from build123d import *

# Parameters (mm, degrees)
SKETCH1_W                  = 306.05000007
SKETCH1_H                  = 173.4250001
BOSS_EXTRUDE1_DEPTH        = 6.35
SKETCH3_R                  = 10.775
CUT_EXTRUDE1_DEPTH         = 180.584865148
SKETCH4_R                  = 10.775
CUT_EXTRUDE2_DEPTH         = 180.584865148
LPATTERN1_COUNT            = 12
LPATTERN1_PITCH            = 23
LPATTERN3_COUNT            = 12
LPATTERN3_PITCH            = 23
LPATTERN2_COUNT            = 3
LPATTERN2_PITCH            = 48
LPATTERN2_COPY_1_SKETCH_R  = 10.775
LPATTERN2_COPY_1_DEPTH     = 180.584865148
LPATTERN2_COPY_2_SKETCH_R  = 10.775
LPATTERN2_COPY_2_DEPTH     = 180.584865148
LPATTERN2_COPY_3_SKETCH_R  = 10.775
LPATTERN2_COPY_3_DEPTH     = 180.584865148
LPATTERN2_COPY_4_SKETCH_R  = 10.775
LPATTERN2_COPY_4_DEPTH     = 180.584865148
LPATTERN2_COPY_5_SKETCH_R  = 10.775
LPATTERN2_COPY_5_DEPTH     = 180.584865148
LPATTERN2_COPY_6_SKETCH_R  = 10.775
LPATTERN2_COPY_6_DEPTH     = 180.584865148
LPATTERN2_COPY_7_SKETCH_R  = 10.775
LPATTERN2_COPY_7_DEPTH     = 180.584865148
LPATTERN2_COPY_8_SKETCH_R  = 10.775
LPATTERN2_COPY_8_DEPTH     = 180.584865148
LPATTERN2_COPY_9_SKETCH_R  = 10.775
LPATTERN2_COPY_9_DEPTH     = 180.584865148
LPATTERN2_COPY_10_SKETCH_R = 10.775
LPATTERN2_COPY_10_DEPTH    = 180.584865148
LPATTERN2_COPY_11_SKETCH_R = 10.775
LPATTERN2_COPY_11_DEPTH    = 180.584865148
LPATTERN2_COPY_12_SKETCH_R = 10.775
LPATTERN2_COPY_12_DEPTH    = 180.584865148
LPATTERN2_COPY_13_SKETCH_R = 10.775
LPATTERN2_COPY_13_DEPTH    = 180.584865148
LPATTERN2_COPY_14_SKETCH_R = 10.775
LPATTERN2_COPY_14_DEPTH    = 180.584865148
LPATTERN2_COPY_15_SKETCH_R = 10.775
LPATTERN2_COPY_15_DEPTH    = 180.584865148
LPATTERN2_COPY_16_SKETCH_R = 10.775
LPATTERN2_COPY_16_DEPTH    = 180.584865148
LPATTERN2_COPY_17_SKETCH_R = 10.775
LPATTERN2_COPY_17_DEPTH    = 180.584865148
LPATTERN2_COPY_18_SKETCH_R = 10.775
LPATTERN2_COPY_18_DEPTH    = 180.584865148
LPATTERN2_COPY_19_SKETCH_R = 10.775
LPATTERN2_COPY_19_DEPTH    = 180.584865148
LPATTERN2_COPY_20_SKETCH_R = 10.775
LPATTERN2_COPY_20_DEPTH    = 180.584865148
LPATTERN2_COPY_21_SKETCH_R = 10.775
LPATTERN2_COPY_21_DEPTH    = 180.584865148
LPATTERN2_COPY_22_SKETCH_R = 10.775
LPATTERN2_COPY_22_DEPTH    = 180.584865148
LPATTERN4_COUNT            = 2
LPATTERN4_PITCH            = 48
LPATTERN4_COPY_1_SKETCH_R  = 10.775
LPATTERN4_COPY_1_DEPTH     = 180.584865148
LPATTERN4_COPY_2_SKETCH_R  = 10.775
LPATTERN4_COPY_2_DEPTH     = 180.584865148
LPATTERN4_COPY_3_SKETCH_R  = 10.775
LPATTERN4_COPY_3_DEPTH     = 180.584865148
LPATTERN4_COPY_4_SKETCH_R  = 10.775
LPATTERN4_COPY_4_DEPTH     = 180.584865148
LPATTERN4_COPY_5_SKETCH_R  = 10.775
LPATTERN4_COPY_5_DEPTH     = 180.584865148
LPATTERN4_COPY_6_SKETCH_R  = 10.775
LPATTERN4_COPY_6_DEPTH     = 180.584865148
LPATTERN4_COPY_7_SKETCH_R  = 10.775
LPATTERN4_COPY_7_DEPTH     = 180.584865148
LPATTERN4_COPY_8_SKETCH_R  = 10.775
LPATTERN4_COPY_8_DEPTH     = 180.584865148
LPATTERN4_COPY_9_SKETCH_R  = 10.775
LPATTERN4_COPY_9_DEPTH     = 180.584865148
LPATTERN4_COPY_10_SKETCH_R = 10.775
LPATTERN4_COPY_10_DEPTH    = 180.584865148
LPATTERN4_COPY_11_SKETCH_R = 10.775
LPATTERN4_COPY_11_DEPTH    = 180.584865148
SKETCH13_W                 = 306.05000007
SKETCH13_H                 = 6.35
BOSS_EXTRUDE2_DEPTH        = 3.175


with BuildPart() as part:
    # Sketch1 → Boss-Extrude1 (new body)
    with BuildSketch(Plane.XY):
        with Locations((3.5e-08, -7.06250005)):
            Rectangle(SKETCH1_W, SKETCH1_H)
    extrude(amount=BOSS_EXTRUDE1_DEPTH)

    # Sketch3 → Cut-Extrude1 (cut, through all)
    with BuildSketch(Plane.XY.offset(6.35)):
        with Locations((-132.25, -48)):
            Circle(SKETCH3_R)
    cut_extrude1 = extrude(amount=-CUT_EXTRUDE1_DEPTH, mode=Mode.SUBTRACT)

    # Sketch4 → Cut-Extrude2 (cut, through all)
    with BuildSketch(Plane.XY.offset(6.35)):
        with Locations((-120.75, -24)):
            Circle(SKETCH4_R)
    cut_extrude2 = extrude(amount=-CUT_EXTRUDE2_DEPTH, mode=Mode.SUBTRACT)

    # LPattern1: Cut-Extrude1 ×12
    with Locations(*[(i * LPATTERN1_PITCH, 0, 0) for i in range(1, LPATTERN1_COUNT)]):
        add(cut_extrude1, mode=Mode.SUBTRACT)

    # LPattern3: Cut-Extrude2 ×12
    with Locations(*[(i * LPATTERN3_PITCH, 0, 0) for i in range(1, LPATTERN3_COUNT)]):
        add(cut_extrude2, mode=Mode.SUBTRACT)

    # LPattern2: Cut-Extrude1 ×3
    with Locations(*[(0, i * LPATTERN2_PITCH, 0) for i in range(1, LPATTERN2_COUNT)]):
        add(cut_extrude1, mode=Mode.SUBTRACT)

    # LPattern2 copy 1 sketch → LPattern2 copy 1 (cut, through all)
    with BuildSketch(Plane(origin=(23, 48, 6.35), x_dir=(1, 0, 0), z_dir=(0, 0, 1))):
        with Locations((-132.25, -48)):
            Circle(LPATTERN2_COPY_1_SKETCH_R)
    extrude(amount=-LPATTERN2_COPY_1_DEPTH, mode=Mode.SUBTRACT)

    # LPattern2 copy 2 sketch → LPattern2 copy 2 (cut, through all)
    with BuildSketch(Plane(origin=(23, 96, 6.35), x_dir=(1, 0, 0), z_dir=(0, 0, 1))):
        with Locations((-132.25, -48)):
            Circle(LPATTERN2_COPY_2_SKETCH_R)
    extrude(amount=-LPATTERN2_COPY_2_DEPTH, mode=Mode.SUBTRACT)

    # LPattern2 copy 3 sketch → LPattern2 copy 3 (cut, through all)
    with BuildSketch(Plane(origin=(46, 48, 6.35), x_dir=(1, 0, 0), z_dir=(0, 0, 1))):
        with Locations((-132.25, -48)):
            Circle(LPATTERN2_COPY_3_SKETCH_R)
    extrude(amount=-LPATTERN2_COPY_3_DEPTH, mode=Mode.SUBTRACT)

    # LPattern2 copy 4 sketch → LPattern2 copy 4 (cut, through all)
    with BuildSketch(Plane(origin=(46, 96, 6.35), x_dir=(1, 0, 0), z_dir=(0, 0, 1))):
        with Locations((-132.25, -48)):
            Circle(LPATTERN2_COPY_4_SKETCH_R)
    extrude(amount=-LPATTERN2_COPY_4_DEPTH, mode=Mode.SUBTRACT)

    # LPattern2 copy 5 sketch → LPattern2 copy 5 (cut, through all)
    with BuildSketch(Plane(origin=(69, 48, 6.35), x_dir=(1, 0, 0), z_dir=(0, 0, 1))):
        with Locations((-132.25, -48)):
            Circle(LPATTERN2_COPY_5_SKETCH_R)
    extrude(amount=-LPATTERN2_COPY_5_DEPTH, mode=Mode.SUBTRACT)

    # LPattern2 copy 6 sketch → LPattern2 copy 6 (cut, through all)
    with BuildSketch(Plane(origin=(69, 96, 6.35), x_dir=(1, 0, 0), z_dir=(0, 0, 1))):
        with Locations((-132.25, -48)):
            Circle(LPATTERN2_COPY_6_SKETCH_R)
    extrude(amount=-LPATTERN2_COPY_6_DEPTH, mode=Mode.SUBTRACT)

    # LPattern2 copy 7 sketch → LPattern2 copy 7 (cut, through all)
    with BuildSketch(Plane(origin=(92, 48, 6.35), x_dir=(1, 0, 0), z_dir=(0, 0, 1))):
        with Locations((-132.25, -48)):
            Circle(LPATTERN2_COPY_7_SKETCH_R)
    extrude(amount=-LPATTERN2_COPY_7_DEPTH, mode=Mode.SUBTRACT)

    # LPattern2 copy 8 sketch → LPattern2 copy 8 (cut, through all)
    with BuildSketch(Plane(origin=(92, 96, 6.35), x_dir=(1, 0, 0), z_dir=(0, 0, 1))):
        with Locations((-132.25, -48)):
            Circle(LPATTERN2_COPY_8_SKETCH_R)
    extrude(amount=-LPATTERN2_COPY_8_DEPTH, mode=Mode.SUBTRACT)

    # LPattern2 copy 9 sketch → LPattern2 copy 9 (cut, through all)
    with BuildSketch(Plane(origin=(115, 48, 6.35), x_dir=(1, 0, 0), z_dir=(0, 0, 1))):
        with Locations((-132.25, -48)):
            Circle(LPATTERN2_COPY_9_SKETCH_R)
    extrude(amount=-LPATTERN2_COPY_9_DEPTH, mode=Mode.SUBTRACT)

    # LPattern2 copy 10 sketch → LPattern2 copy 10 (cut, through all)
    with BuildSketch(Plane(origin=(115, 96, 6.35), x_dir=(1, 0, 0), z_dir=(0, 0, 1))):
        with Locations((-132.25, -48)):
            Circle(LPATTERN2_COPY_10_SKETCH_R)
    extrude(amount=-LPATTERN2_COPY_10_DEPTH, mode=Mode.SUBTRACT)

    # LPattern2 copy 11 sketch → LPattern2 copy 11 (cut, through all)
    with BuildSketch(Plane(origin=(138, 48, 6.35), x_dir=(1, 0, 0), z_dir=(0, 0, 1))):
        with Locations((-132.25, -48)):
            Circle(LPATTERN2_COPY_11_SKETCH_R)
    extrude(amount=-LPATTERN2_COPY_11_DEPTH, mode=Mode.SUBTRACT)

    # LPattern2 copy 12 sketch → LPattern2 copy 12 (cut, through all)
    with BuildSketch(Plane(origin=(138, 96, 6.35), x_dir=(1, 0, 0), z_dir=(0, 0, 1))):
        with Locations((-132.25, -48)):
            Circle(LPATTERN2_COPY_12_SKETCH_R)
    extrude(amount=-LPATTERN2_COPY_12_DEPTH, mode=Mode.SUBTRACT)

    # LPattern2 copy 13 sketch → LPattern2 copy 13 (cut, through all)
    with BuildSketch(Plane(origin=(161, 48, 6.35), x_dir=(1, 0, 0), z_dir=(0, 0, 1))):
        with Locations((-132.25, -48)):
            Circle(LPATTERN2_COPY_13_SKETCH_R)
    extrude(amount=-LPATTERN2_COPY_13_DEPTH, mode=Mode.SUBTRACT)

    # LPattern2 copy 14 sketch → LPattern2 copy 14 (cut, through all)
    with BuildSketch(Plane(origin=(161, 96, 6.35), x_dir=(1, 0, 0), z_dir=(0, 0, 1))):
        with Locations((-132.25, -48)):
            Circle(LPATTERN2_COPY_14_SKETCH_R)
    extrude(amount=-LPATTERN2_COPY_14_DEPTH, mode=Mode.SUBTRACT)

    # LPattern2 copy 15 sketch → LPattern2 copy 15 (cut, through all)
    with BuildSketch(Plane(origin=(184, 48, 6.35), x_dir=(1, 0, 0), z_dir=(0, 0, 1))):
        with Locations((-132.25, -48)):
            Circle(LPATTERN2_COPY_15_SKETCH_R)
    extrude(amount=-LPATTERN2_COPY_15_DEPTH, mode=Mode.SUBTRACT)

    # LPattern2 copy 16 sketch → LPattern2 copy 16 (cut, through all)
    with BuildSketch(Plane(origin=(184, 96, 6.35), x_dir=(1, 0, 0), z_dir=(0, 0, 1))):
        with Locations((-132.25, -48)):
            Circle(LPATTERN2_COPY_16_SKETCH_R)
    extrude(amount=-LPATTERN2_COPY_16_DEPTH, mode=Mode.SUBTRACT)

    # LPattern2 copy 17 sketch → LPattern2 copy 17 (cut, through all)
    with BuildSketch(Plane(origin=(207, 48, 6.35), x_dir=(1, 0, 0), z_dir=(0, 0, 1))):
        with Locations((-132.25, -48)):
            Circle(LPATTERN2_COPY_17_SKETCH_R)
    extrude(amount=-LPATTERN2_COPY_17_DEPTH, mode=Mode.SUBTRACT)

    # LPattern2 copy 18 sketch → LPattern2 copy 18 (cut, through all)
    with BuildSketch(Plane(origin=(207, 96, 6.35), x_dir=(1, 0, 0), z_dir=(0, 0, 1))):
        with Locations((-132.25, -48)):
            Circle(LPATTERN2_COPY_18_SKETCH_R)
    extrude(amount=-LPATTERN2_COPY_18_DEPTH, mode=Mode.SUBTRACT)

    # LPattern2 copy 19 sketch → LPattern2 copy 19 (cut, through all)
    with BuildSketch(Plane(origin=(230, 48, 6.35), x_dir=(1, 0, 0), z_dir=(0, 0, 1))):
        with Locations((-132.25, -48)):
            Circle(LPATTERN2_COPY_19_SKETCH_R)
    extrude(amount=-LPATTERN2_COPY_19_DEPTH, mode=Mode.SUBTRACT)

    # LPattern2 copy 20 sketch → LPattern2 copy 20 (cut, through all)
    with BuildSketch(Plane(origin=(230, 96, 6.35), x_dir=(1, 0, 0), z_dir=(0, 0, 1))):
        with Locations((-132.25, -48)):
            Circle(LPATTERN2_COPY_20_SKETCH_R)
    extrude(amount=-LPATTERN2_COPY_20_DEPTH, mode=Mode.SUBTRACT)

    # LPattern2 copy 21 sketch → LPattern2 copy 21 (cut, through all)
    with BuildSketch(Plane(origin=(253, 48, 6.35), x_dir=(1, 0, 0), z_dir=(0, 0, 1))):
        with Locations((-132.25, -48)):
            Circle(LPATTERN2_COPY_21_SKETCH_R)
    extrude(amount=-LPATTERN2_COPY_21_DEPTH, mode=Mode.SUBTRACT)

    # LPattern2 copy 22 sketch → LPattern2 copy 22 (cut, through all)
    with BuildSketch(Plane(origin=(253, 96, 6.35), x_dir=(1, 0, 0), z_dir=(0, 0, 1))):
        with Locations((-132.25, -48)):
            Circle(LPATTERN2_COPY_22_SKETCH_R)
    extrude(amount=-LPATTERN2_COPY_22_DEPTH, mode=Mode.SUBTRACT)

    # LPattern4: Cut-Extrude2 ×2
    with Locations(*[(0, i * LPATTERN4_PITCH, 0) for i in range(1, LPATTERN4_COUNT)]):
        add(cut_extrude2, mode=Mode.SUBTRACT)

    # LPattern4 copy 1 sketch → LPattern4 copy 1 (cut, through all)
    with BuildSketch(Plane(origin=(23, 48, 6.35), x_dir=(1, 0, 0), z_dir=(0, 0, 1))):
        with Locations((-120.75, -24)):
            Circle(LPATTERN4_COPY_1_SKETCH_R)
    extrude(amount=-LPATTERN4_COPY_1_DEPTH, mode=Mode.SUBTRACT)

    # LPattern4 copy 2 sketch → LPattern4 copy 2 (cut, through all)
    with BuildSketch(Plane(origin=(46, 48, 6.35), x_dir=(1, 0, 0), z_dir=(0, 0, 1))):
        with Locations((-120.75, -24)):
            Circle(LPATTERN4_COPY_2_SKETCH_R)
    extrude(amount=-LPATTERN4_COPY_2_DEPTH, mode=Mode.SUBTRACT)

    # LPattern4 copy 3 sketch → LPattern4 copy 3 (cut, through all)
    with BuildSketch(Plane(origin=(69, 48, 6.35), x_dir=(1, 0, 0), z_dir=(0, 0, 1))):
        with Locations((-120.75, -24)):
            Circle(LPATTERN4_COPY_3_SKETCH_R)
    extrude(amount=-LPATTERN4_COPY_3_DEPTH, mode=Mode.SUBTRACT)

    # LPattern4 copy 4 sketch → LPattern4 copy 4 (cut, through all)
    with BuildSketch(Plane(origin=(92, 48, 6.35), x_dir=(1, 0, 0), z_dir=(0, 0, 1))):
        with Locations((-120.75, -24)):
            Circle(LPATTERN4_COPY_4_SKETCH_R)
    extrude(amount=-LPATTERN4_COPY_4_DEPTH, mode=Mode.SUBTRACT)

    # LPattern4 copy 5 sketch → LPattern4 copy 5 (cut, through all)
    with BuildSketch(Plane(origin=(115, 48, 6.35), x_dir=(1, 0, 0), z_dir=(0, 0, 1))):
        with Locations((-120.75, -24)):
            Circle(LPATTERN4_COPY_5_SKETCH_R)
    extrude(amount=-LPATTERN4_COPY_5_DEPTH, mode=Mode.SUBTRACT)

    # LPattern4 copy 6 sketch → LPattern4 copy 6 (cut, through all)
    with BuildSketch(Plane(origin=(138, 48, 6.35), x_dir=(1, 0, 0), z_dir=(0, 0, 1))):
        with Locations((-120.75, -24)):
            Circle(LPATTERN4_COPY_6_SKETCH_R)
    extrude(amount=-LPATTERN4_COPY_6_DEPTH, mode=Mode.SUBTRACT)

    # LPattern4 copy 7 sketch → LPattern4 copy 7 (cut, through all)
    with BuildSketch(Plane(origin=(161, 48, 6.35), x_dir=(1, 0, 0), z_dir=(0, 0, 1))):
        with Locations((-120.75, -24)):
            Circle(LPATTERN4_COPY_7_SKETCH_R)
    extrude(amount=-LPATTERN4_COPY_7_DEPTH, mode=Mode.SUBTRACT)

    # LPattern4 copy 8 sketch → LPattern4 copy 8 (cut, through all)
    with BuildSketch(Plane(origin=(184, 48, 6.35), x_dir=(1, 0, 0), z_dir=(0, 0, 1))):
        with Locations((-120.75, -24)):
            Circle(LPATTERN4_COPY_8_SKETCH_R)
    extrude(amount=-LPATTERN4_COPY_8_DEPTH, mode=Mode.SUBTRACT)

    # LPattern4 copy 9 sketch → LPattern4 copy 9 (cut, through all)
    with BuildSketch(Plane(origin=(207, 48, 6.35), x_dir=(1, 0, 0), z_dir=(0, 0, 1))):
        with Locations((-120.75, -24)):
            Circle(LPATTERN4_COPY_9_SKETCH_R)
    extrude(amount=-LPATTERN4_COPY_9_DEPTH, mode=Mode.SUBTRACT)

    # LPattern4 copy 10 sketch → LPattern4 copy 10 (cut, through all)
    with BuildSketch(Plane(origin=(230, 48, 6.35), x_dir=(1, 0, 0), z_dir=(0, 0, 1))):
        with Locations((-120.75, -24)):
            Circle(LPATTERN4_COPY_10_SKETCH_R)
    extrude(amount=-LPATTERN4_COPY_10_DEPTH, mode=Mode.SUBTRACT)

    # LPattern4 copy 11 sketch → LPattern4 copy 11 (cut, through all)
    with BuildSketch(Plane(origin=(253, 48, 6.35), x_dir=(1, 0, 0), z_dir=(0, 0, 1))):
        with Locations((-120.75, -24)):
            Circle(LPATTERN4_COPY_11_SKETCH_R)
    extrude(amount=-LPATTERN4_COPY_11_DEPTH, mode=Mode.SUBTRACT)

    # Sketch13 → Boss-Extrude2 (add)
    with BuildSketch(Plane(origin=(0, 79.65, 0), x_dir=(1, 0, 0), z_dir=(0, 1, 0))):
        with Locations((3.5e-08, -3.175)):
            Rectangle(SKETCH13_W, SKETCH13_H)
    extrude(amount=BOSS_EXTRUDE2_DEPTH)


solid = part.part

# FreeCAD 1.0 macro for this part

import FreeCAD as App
import Part
import Sketcher
from FreeCAD import Vector
Q = App.Units.Quantity

doc = App.newDocument("Part")
params = doc.addObject("Spreadsheet::Sheet", "Params")
for row, (alias, value) in enumerate([
    ("pad1_length", "0.25 in"),
    ("linearpattern_pitch", "23 mm"),
    ("linearpattern2_pitch", "23 mm"),
    ("linearpattern3_pitch", "48 mm"),
    ("linearpattern4_pitch", "48 mm"),
    ("sketch37_height", "0.25 in"),
    ("pad2_length", "0.125 in"),
], start=1):
    params.set(f"A{row}", alias)
    params.set(f"B{row}", "=" + value)
    params.setAlias(f"B{row}", alias)

body = doc.addObject("PartDesign::Body", "Body")

# Sketch on XY plane
sketch1 = body.newObject("Sketcher::SketchObject", "Sketch")
sketch1.AttachmentSupport = (doc.getObject("XY_Plane"), [""])
sketch1.MapMode = "FlatFace"
sketch1.addGeometry(Part.LineSegment(Vector(-153.025, 79.65, 0), Vector(-153.025, -93.775, 0)), False)
sketch1.addGeometry(Part.LineSegment(Vector(-153.025, -93.775, 0), Vector(153.025, -93.775, 0)), False)
sketch1.addGeometry(Part.LineSegment(Vector(153.025, -93.775, 0), Vector(153.025, 79.65, 0)), False)
sketch1.addGeometry(Part.LineSegment(Vector(153.025, 79.65, 0), Vector(-153.025, 79.65, 0)), False)
sketch1.addConstraint(Sketcher.Constraint("Coincident", 0, 2, 1, 1))
sketch1.addConstraint(Sketcher.Constraint("Coincident", 1, 2, 2, 1))
sketch1.addConstraint(Sketcher.Constraint("Coincident", 2, 2, 3, 1))
sketch1.addConstraint(Sketcher.Constraint("Coincident", 3, 2, 0, 1))
sketch1.addConstraint(Sketcher.Constraint("Vertical", 0))
sketch1.addConstraint(Sketcher.Constraint("Horizontal", 1))
sketch1.addConstraint(Sketcher.Constraint("Vertical", 2))
sketch1.addConstraint(Sketcher.Constraint("Horizontal", 3))
sketch1.addConstraint(Sketcher.Constraint("DistanceX", 1, 1, 1, 2, Q("306.05 mm")))
sketch1.addConstraint(Sketcher.Constraint("DistanceY", 0, 2, 0, 1, Q("173.425 mm")))
sketch1.addConstraint(Sketcher.Constraint("DistanceX", 0, 2, -1, 1, Q("153.025 mm")))
sketch1.addConstraint(Sketcher.Constraint("DistanceY", 0, 2, -1, 1, Q("93.775 mm")))
pad1 = body.newObject("PartDesign::Pad", "Pad")
pad1.Profile = sketch1
pad1.setExpression("Length", "Params.pad1_length")

# Sketch on XY plane
sketch2 = body.newObject("Sketcher::SketchObject", "Sketch001")
sketch2.AttachmentSupport = (doc.getObject("XY_Plane"), [""])
sketch2.MapMode = "FlatFace"
sketch2.AttachmentOffset = App.Placement(Vector(0, 0, 0.25 * 25.4), App.Rotation())
sketch2.addGeometry(Part.Circle(Vector(-132.25, -48, 0), Vector(0, 0, 1), 10.775), False)
sketch2.addConstraint(Sketcher.Constraint("Diameter", 0, Q("21.55 mm")))
sketch2.addConstraint(Sketcher.Constraint("DistanceX", 0, 3, -1, 1, Q("132.25 mm")))
sketch2.addConstraint(Sketcher.Constraint("DistanceY", 0, 3, -1, 1, Q("48 mm")))
pocket1 = body.newObject("PartDesign::Pocket", "Pocket")
pocket1.Profile = sketch2
pocket1.Type = "ThroughAll"

# Sketch on XY plane
sketch3 = body.newObject("Sketcher::SketchObject", "Sketch002")
sketch3.AttachmentSupport = (doc.getObject("XY_Plane"), [""])
sketch3.MapMode = "FlatFace"
sketch3.AttachmentOffset = App.Placement(Vector(0, 0, 0.25 * 25.4), App.Rotation())
sketch3.addGeometry(Part.Circle(Vector(-120.75, -24, 0), Vector(0, 0, 1), 10.775), False)
sketch3.addConstraint(Sketcher.Constraint("Diameter", 0, Q("21.55 mm")))
sketch3.addConstraint(Sketcher.Constraint("DistanceX", 0, 3, -1, 1, Q("120.75 mm")))
sketch3.addConstraint(Sketcher.Constraint("DistanceY", 0, 3, -1, 1, Q("24 mm")))
pocket2 = body.newObject("PartDesign::Pocket", "Pocket001")
pocket2.Profile = sketch3
pocket2.Type = "ThroughAll"
doc.recompute()

linearpattern = body.newObject("PartDesign::LinearPattern", "LinearPattern")
linearpattern.Originals = [pocket1]
linearpattern.Direction = (doc.getObject("X_Axis"), [""])
linearpattern.Mode = "offset"
linearpattern.setExpression("Offset", "Params.linearpattern_pitch")
linearpattern.Occurrences = 12
body.Tip = linearpattern
doc.recompute()

linearpattern2 = body.newObject("PartDesign::LinearPattern", "LinearPattern001")
linearpattern2.Originals = [pocket2]
linearpattern2.Direction = (doc.getObject("X_Axis"), [""])
linearpattern2.Mode = "offset"
linearpattern2.setExpression("Offset", "Params.linearpattern2_pitch")
linearpattern2.Occurrences = 12
body.Tip = linearpattern2
doc.recompute()

linearpattern3 = body.newObject("PartDesign::LinearPattern", "LinearPattern002")
linearpattern3.Originals = [pocket1]
linearpattern3.Direction = (doc.getObject("Y_Axis"), [""])
linearpattern3.Mode = "offset"
linearpattern3.setExpression("Offset", "Params.linearpattern3_pitch")
linearpattern3.Occurrences = 3
body.Tip = linearpattern3

# Sketch on XY plane
sketch4 = body.newObject("Sketcher::SketchObject", "Sketch003")
sketch4.AttachmentSupport = (doc.getObject("XY_Plane"), [""])
sketch4.MapMode = "FlatFace"
sketch4.AttachmentOffset = App.Placement(Vector(0, 0, 0.25 * 25.4), App.Rotation())
sketch4.addGeometry(Part.Circle(Vector(-109.25, 0, 0), Vector(0, 0, 1), 10.775), False)
sketch4.addConstraint(Sketcher.Constraint("PointOnObject", 0, 3, -1))
sketch4.addConstraint(Sketcher.Constraint("Diameter", 0, Q("21.55 mm")))
sketch4.addConstraint(Sketcher.Constraint("DistanceX", 0, 3, -1, 1, Q("109.25 mm")))
pocket3 = body.newObject("PartDesign::Pocket", "Pocket002")
pocket3.Profile = sketch4
pocket3.Type = "ThroughAll"

# Sketch on XY plane
sketch5 = body.newObject("Sketcher::SketchObject", "Sketch004")
sketch5.AttachmentSupport = (doc.getObject("XY_Plane"), [""])
sketch5.MapMode = "FlatFace"
sketch5.AttachmentOffset = App.Placement(Vector(0, 0, 0.25 * 25.4), App.Rotation())
sketch5.addGeometry(Part.Circle(Vector(-109.25, 48, 0), Vector(0, 0, 1), 10.775), False)
sketch5.addConstraint(Sketcher.Constraint("Diameter", 0, Q("21.55 mm")))
sketch5.addConstraint(Sketcher.Constraint("DistanceX", 0, 3, -1, 1, Q("109.25 mm")))
sketch5.addConstraint(Sketcher.Constraint("DistanceY", -1, 1, 0, 3, Q("48 mm")))
pocket4 = body.newObject("PartDesign::Pocket", "Pocket003")
pocket4.Profile = sketch5
pocket4.Type = "ThroughAll"

# Sketch on XY plane
sketch6 = body.newObject("Sketcher::SketchObject", "Sketch005")
sketch6.AttachmentSupport = (doc.getObject("XY_Plane"), [""])
sketch6.MapMode = "FlatFace"
sketch6.AttachmentOffset = App.Placement(Vector(0, 0, 0.25 * 25.4), App.Rotation())
sketch6.addGeometry(Part.Circle(Vector(-86.25, 0, 0), Vector(0, 0, 1), 10.775), False)
sketch6.addConstraint(Sketcher.Constraint("PointOnObject", 0, 3, -1))
sketch6.addConstraint(Sketcher.Constraint("Diameter", 0, Q("21.55 mm")))
sketch6.addConstraint(Sketcher.Constraint("DistanceX", 0, 3, -1, 1, Q("86.25 mm")))
pocket5 = body.newObject("PartDesign::Pocket", "Pocket004")
pocket5.Profile = sketch6
pocket5.Type = "ThroughAll"

# Sketch on XY plane
sketch7 = body.newObject("Sketcher::SketchObject", "Sketch006")
sketch7.AttachmentSupport = (doc.getObject("XY_Plane"), [""])
sketch7.MapMode = "FlatFace"
sketch7.AttachmentOffset = App.Placement(Vector(0, 0, 0.25 * 25.4), App.Rotation())
sketch7.addGeometry(Part.Circle(Vector(-86.25, 48, 0), Vector(0, 0, 1), 10.775), False)
sketch7.addConstraint(Sketcher.Constraint("Diameter", 0, Q("21.55 mm")))
sketch7.addConstraint(Sketcher.Constraint("DistanceX", 0, 3, -1, 1, Q("86.25 mm")))
sketch7.addConstraint(Sketcher.Constraint("DistanceY", -1, 1, 0, 3, Q("48 mm")))
pocket6 = body.newObject("PartDesign::Pocket", "Pocket005")
pocket6.Profile = sketch7
pocket6.Type = "ThroughAll"

# Sketch on XY plane
sketch8 = body.newObject("Sketcher::SketchObject", "Sketch007")
sketch8.AttachmentSupport = (doc.getObject("XY_Plane"), [""])
sketch8.MapMode = "FlatFace"
sketch8.AttachmentOffset = App.Placement(Vector(0, 0, 0.25 * 25.4), App.Rotation())
sketch8.addGeometry(Part.Circle(Vector(-63.25, 0, 0), Vector(0, 0, 1), 10.775), False)
sketch8.addConstraint(Sketcher.Constraint("PointOnObject", 0, 3, -1))
sketch8.addConstraint(Sketcher.Constraint("Diameter", 0, Q("21.55 mm")))
sketch8.addConstraint(Sketcher.Constraint("DistanceX", 0, 3, -1, 1, Q("63.25 mm")))
pocket7 = body.newObject("PartDesign::Pocket", "Pocket006")
pocket7.Profile = sketch8
pocket7.Type = "ThroughAll"

# Sketch on XY plane
sketch9 = body.newObject("Sketcher::SketchObject", "Sketch008")
sketch9.AttachmentSupport = (doc.getObject("XY_Plane"), [""])
sketch9.MapMode = "FlatFace"
sketch9.AttachmentOffset = App.Placement(Vector(0, 0, 0.25 * 25.4), App.Rotation())
sketch9.addGeometry(Part.Circle(Vector(-63.25, 48, 0), Vector(0, 0, 1), 10.775), False)
sketch9.addConstraint(Sketcher.Constraint("Diameter", 0, Q("21.55 mm")))
sketch9.addConstraint(Sketcher.Constraint("DistanceX", 0, 3, -1, 1, Q("63.25 mm")))
sketch9.addConstraint(Sketcher.Constraint("DistanceY", -1, 1, 0, 3, Q("48 mm")))
pocket8 = body.newObject("PartDesign::Pocket", "Pocket007")
pocket8.Profile = sketch9
pocket8.Type = "ThroughAll"

# Sketch on XY plane
sketch10 = body.newObject("Sketcher::SketchObject", "Sketch009")
sketch10.AttachmentSupport = (doc.getObject("XY_Plane"), [""])
sketch10.MapMode = "FlatFace"
sketch10.AttachmentOffset = App.Placement(Vector(0, 0, 0.25 * 25.4), App.Rotation())
sketch10.addGeometry(Part.Circle(Vector(-40.25, 0, 0), Vector(0, 0, 1), 10.775), False)
sketch10.addConstraint(Sketcher.Constraint("PointOnObject", 0, 3, -1))
sketch10.addConstraint(Sketcher.Constraint("Diameter", 0, Q("21.55 mm")))
sketch10.addConstraint(Sketcher.Constraint("DistanceX", 0, 3, -1, 1, Q("40.25 mm")))
pocket9 = body.newObject("PartDesign::Pocket", "Pocket008")
pocket9.Profile = sketch10
pocket9.Type = "ThroughAll"

# Sketch on XY plane
sketch11 = body.newObject("Sketcher::SketchObject", "Sketch010")
sketch11.AttachmentSupport = (doc.getObject("XY_Plane"), [""])
sketch11.MapMode = "FlatFace"
sketch11.AttachmentOffset = App.Placement(Vector(0, 0, 0.25 * 25.4), App.Rotation())
sketch11.addGeometry(Part.Circle(Vector(-40.25, 48, 0), Vector(0, 0, 1), 10.775), False)
sketch11.addConstraint(Sketcher.Constraint("Diameter", 0, Q("21.55 mm")))
sketch11.addConstraint(Sketcher.Constraint("DistanceX", 0, 3, -1, 1, Q("40.25 mm")))
sketch11.addConstraint(Sketcher.Constraint("DistanceY", -1, 1, 0, 3, Q("48 mm")))
pocket10 = body.newObject("PartDesign::Pocket", "Pocket009")
pocket10.Profile = sketch11
pocket10.Type = "ThroughAll"

# Sketch on XY plane
sketch12 = body.newObject("Sketcher::SketchObject", "Sketch011")
sketch12.AttachmentSupport = (doc.getObject("XY_Plane"), [""])
sketch12.MapMode = "FlatFace"
sketch12.AttachmentOffset = App.Placement(Vector(0, 0, 0.25 * 25.4), App.Rotation())
sketch12.addGeometry(Part.Circle(Vector(-17.25, 0, 0), Vector(0, 0, 1), 10.775), False)
sketch12.addConstraint(Sketcher.Constraint("PointOnObject", 0, 3, -1))
sketch12.addConstraint(Sketcher.Constraint("Diameter", 0, Q("21.55 mm")))
sketch12.addConstraint(Sketcher.Constraint("DistanceX", 0, 3, -1, 1, Q("17.25 mm")))
pocket11 = body.newObject("PartDesign::Pocket", "Pocket010")
pocket11.Profile = sketch12
pocket11.Type = "ThroughAll"

# Sketch on XY plane
sketch13 = body.newObject("Sketcher::SketchObject", "Sketch012")
sketch13.AttachmentSupport = (doc.getObject("XY_Plane"), [""])
sketch13.MapMode = "FlatFace"
sketch13.AttachmentOffset = App.Placement(Vector(0, 0, 0.25 * 25.4), App.Rotation())
sketch13.addGeometry(Part.Circle(Vector(-17.25, 48, 0), Vector(0, 0, 1), 10.775), False)
sketch13.addConstraint(Sketcher.Constraint("Diameter", 0, Q("21.55 mm")))
sketch13.addConstraint(Sketcher.Constraint("DistanceX", 0, 3, -1, 1, Q("17.25 mm")))
sketch13.addConstraint(Sketcher.Constraint("DistanceY", -1, 1, 0, 3, Q("48 mm")))
pocket12 = body.newObject("PartDesign::Pocket", "Pocket011")
pocket12.Profile = sketch13
pocket12.Type = "ThroughAll"

# Sketch on XY plane
sketch14 = body.newObject("Sketcher::SketchObject", "Sketch013")
sketch14.AttachmentSupport = (doc.getObject("XY_Plane"), [""])
sketch14.MapMode = "FlatFace"
sketch14.AttachmentOffset = App.Placement(Vector(0, 0, 0.25 * 25.4), App.Rotation())
sketch14.addGeometry(Part.Circle(Vector(5.75, 0, 0), Vector(0, 0, 1), 10.775), False)
sketch14.addConstraint(Sketcher.Constraint("PointOnObject", 0, 3, -1))
sketch14.addConstraint(Sketcher.Constraint("Diameter", 0, Q("21.55 mm")))
sketch14.addConstraint(Sketcher.Constraint("DistanceX", -1, 1, 0, 3, Q("5.75 mm")))
pocket13 = body.newObject("PartDesign::Pocket", "Pocket012")
pocket13.Profile = sketch14
pocket13.Type = "ThroughAll"

# Sketch on XY plane
sketch15 = body.newObject("Sketcher::SketchObject", "Sketch014")
sketch15.AttachmentSupport = (doc.getObject("XY_Plane"), [""])
sketch15.MapMode = "FlatFace"
sketch15.AttachmentOffset = App.Placement(Vector(0, 0, 0.25 * 25.4), App.Rotation())
sketch15.addGeometry(Part.Circle(Vector(5.75, 48, 0), Vector(0, 0, 1), 10.775), False)
sketch15.addConstraint(Sketcher.Constraint("Diameter", 0, Q("21.55 mm")))
sketch15.addConstraint(Sketcher.Constraint("DistanceX", -1, 1, 0, 3, Q("5.75 mm")))
sketch15.addConstraint(Sketcher.Constraint("DistanceY", -1, 1, 0, 3, Q("48 mm")))
pocket14 = body.newObject("PartDesign::Pocket", "Pocket013")
pocket14.Profile = sketch15
pocket14.Type = "ThroughAll"

# Sketch on XY plane
sketch16 = body.newObject("Sketcher::SketchObject", "Sketch015")
sketch16.AttachmentSupport = (doc.getObject("XY_Plane"), [""])
sketch16.MapMode = "FlatFace"
sketch16.AttachmentOffset = App.Placement(Vector(0, 0, 0.25 * 25.4), App.Rotation())
sketch16.addGeometry(Part.Circle(Vector(28.75, 0, 0), Vector(0, 0, 1), 10.775), False)
sketch16.addConstraint(Sketcher.Constraint("PointOnObject", 0, 3, -1))
sketch16.addConstraint(Sketcher.Constraint("Diameter", 0, Q("21.55 mm")))
sketch16.addConstraint(Sketcher.Constraint("DistanceX", -1, 1, 0, 3, Q("28.75 mm")))
pocket15 = body.newObject("PartDesign::Pocket", "Pocket014")
pocket15.Profile = sketch16
pocket15.Type = "ThroughAll"

# Sketch on XY plane
sketch17 = body.newObject("Sketcher::SketchObject", "Sketch016")
sketch17.AttachmentSupport = (doc.getObject("XY_Plane"), [""])
sketch17.MapMode = "FlatFace"
sketch17.AttachmentOffset = App.Placement(Vector(0, 0, 0.25 * 25.4), App.Rotation())
sketch17.addGeometry(Part.Circle(Vector(28.75, 48, 0), Vector(0, 0, 1), 10.775), False)
sketch17.addConstraint(Sketcher.Constraint("Diameter", 0, Q("21.55 mm")))
sketch17.addConstraint(Sketcher.Constraint("DistanceX", -1, 1, 0, 3, Q("28.75 mm")))
sketch17.addConstraint(Sketcher.Constraint("DistanceY", -1, 1, 0, 3, Q("48 mm")))
pocket16 = body.newObject("PartDesign::Pocket", "Pocket015")
pocket16.Profile = sketch17
pocket16.Type = "ThroughAll"

# Sketch on XY plane
sketch18 = body.newObject("Sketcher::SketchObject", "Sketch017")
sketch18.AttachmentSupport = (doc.getObject("XY_Plane"), [""])
sketch18.MapMode = "FlatFace"
sketch18.AttachmentOffset = App.Placement(Vector(0, 0, 0.25 * 25.4), App.Rotation())
sketch18.addGeometry(Part.Circle(Vector(51.75, 0, 0), Vector(0, 0, 1), 10.775), False)
sketch18.addConstraint(Sketcher.Constraint("PointOnObject", 0, 3, -1))
sketch18.addConstraint(Sketcher.Constraint("Diameter", 0, Q("21.55 mm")))
sketch18.addConstraint(Sketcher.Constraint("DistanceX", -1, 1, 0, 3, Q("51.75 mm")))
pocket17 = body.newObject("PartDesign::Pocket", "Pocket016")
pocket17.Profile = sketch18
pocket17.Type = "ThroughAll"

# Sketch on XY plane
sketch19 = body.newObject("Sketcher::SketchObject", "Sketch018")
sketch19.AttachmentSupport = (doc.getObject("XY_Plane"), [""])
sketch19.MapMode = "FlatFace"
sketch19.AttachmentOffset = App.Placement(Vector(0, 0, 0.25 * 25.4), App.Rotation())
sketch19.addGeometry(Part.Circle(Vector(51.75, 48, 0), Vector(0, 0, 1), 10.775), False)
sketch19.addConstraint(Sketcher.Constraint("Diameter", 0, Q("21.55 mm")))
sketch19.addConstraint(Sketcher.Constraint("DistanceX", -1, 1, 0, 3, Q("51.75 mm")))
sketch19.addConstraint(Sketcher.Constraint("DistanceY", -1, 1, 0, 3, Q("48 mm")))
pocket18 = body.newObject("PartDesign::Pocket", "Pocket017")
pocket18.Profile = sketch19
pocket18.Type = "ThroughAll"

# Sketch on XY plane
sketch20 = body.newObject("Sketcher::SketchObject", "Sketch019")
sketch20.AttachmentSupport = (doc.getObject("XY_Plane"), [""])
sketch20.MapMode = "FlatFace"
sketch20.AttachmentOffset = App.Placement(Vector(0, 0, 0.25 * 25.4), App.Rotation())
sketch20.addGeometry(Part.Circle(Vector(74.75, 0, 0), Vector(0, 0, 1), 10.775), False)
sketch20.addConstraint(Sketcher.Constraint("PointOnObject", 0, 3, -1))
sketch20.addConstraint(Sketcher.Constraint("Diameter", 0, Q("21.55 mm")))
sketch20.addConstraint(Sketcher.Constraint("DistanceX", -1, 1, 0, 3, Q("74.75 mm")))
pocket19 = body.newObject("PartDesign::Pocket", "Pocket018")
pocket19.Profile = sketch20
pocket19.Type = "ThroughAll"

# Sketch on XY plane
sketch21 = body.newObject("Sketcher::SketchObject", "Sketch020")
sketch21.AttachmentSupport = (doc.getObject("XY_Plane"), [""])
sketch21.MapMode = "FlatFace"
sketch21.AttachmentOffset = App.Placement(Vector(0, 0, 0.25 * 25.4), App.Rotation())
sketch21.addGeometry(Part.Circle(Vector(74.75, 48, 0), Vector(0, 0, 1), 10.775), False)
sketch21.addConstraint(Sketcher.Constraint("Diameter", 0, Q("21.55 mm")))
sketch21.addConstraint(Sketcher.Constraint("DistanceX", -1, 1, 0, 3, Q("74.75 mm")))
sketch21.addConstraint(Sketcher.Constraint("DistanceY", -1, 1, 0, 3, Q("48 mm")))
pocket20 = body.newObject("PartDesign::Pocket", "Pocket019")
pocket20.Profile = sketch21
pocket20.Type = "ThroughAll"

# Sketch on XY plane
sketch22 = body.newObject("Sketcher::SketchObject", "Sketch021")
sketch22.AttachmentSupport = (doc.getObject("XY_Plane"), [""])
sketch22.MapMode = "FlatFace"
sketch22.AttachmentOffset = App.Placement(Vector(0, 0, 0.25 * 25.4), App.Rotation())
sketch22.addGeometry(Part.Circle(Vector(97.75, 0, 0), Vector(0, 0, 1), 10.775), False)
sketch22.addConstraint(Sketcher.Constraint("PointOnObject", 0, 3, -1))
sketch22.addConstraint(Sketcher.Constraint("Diameter", 0, Q("21.55 mm")))
sketch22.addConstraint(Sketcher.Constraint("DistanceX", -1, 1, 0, 3, Q("97.75 mm")))
pocket21 = body.newObject("PartDesign::Pocket", "Pocket020")
pocket21.Profile = sketch22
pocket21.Type = "ThroughAll"

# Sketch on XY plane
sketch23 = body.newObject("Sketcher::SketchObject", "Sketch022")
sketch23.AttachmentSupport = (doc.getObject("XY_Plane"), [""])
sketch23.MapMode = "FlatFace"
sketch23.AttachmentOffset = App.Placement(Vector(0, 0, 0.25 * 25.4), App.Rotation())
sketch23.addGeometry(Part.Circle(Vector(97.75, 48, 0), Vector(0, 0, 1), 10.775), False)
sketch23.addConstraint(Sketcher.Constraint("Diameter", 0, Q("21.55 mm")))
sketch23.addConstraint(Sketcher.Constraint("DistanceX", -1, 1, 0, 3, Q("97.75 mm")))
sketch23.addConstraint(Sketcher.Constraint("DistanceY", -1, 1, 0, 3, Q("48 mm")))
pocket22 = body.newObject("PartDesign::Pocket", "Pocket021")
pocket22.Profile = sketch23
pocket22.Type = "ThroughAll"

# Sketch on XY plane
sketch24 = body.newObject("Sketcher::SketchObject", "Sketch023")
sketch24.AttachmentSupport = (doc.getObject("XY_Plane"), [""])
sketch24.MapMode = "FlatFace"
sketch24.AttachmentOffset = App.Placement(Vector(0, 0, 0.25 * 25.4), App.Rotation())
sketch24.addGeometry(Part.Circle(Vector(120.75, 0, 0), Vector(0, 0, 1), 10.775), False)
sketch24.addConstraint(Sketcher.Constraint("PointOnObject", 0, 3, -1))
sketch24.addConstraint(Sketcher.Constraint("Diameter", 0, Q("21.55 mm")))
sketch24.addConstraint(Sketcher.Constraint("DistanceX", -1, 1, 0, 3, Q("120.75 mm")))
pocket23 = body.newObject("PartDesign::Pocket", "Pocket022")
pocket23.Profile = sketch24
pocket23.Type = "ThroughAll"

# Sketch on XY plane
sketch25 = body.newObject("Sketcher::SketchObject", "Sketch024")
sketch25.AttachmentSupport = (doc.getObject("XY_Plane"), [""])
sketch25.MapMode = "FlatFace"
sketch25.AttachmentOffset = App.Placement(Vector(0, 0, 0.25 * 25.4), App.Rotation())
sketch25.addGeometry(Part.Circle(Vector(120.75, 48, 0), Vector(0, 0, 1), 10.775), False)
sketch25.addConstraint(Sketcher.Constraint("Diameter", 0, Q("21.55 mm")))
sketch25.addConstraint(Sketcher.Constraint("DistanceX", -1, 1, 0, 3, Q("120.75 mm")))
sketch25.addConstraint(Sketcher.Constraint("DistanceY", -1, 1, 0, 3, Q("48 mm")))
pocket24 = body.newObject("PartDesign::Pocket", "Pocket023")
pocket24.Profile = sketch25
pocket24.Type = "ThroughAll"
doc.recompute()

linearpattern4 = body.newObject("PartDesign::LinearPattern", "LinearPattern003")
linearpattern4.Originals = [pocket2]
linearpattern4.Direction = (doc.getObject("Y_Axis"), [""])
linearpattern4.Mode = "offset"
linearpattern4.setExpression("Offset", "Params.linearpattern4_pitch")
linearpattern4.Occurrences = 2
body.Tip = linearpattern4

# Sketch on XY plane
sketch26 = body.newObject("Sketcher::SketchObject", "Sketch025")
sketch26.AttachmentSupport = (doc.getObject("XY_Plane"), [""])
sketch26.MapMode = "FlatFace"
sketch26.AttachmentOffset = App.Placement(Vector(0, 0, 0.25 * 25.4), App.Rotation())
sketch26.addGeometry(Part.Circle(Vector(-97.75, 24, 0), Vector(0, 0, 1), 10.775), False)
sketch26.addConstraint(Sketcher.Constraint("Diameter", 0, Q("21.55 mm")))
sketch26.addConstraint(Sketcher.Constraint("DistanceX", 0, 3, -1, 1, Q("97.75 mm")))
sketch26.addConstraint(Sketcher.Constraint("DistanceY", -1, 1, 0, 3, Q("24 mm")))
pocket25 = body.newObject("PartDesign::Pocket", "Pocket024")
pocket25.Profile = sketch26
pocket25.Type = "ThroughAll"

# Sketch on XY plane
sketch27 = body.newObject("Sketcher::SketchObject", "Sketch026")
sketch27.AttachmentSupport = (doc.getObject("XY_Plane"), [""])
sketch27.MapMode = "FlatFace"
sketch27.AttachmentOffset = App.Placement(Vector(0, 0, 0.25 * 25.4), App.Rotation())
sketch27.addGeometry(Part.Circle(Vector(-74.75, 24, 0), Vector(0, 0, 1), 10.775), False)
sketch27.addConstraint(Sketcher.Constraint("Diameter", 0, Q("21.55 mm")))
sketch27.addConstraint(Sketcher.Constraint("DistanceX", 0, 3, -1, 1, Q("74.75 mm")))
sketch27.addConstraint(Sketcher.Constraint("DistanceY", -1, 1, 0, 3, Q("24 mm")))
pocket26 = body.newObject("PartDesign::Pocket", "Pocket025")
pocket26.Profile = sketch27
pocket26.Type = "ThroughAll"

# Sketch on XY plane
sketch28 = body.newObject("Sketcher::SketchObject", "Sketch027")
sketch28.AttachmentSupport = (doc.getObject("XY_Plane"), [""])
sketch28.MapMode = "FlatFace"
sketch28.AttachmentOffset = App.Placement(Vector(0, 0, 0.25 * 25.4), App.Rotation())
sketch28.addGeometry(Part.Circle(Vector(-51.75, 24, 0), Vector(0, 0, 1), 10.775), False)
sketch28.addConstraint(Sketcher.Constraint("Diameter", 0, Q("21.55 mm")))
sketch28.addConstraint(Sketcher.Constraint("DistanceX", 0, 3, -1, 1, Q("51.75 mm")))
sketch28.addConstraint(Sketcher.Constraint("DistanceY", -1, 1, 0, 3, Q("24 mm")))
pocket27 = body.newObject("PartDesign::Pocket", "Pocket026")
pocket27.Profile = sketch28
pocket27.Type = "ThroughAll"

# Sketch on XY plane
sketch29 = body.newObject("Sketcher::SketchObject", "Sketch028")
sketch29.AttachmentSupport = (doc.getObject("XY_Plane"), [""])
sketch29.MapMode = "FlatFace"
sketch29.AttachmentOffset = App.Placement(Vector(0, 0, 0.25 * 25.4), App.Rotation())
sketch29.addGeometry(Part.Circle(Vector(-28.75, 24, 0), Vector(0, 0, 1), 10.775), False)
sketch29.addConstraint(Sketcher.Constraint("Diameter", 0, Q("21.55 mm")))
sketch29.addConstraint(Sketcher.Constraint("DistanceX", 0, 3, -1, 1, Q("28.75 mm")))
sketch29.addConstraint(Sketcher.Constraint("DistanceY", -1, 1, 0, 3, Q("24 mm")))
pocket28 = body.newObject("PartDesign::Pocket", "Pocket027")
pocket28.Profile = sketch29
pocket28.Type = "ThroughAll"

# Sketch on XY plane
sketch30 = body.newObject("Sketcher::SketchObject", "Sketch029")
sketch30.AttachmentSupport = (doc.getObject("XY_Plane"), [""])
sketch30.MapMode = "FlatFace"
sketch30.AttachmentOffset = App.Placement(Vector(0, 0, 0.25 * 25.4), App.Rotation())
sketch30.addGeometry(Part.Circle(Vector(-5.75, 24, 0), Vector(0, 0, 1), 10.775), False)
sketch30.addConstraint(Sketcher.Constraint("Diameter", 0, Q("21.55 mm")))
sketch30.addConstraint(Sketcher.Constraint("DistanceX", 0, 3, -1, 1, Q("5.75 mm")))
sketch30.addConstraint(Sketcher.Constraint("DistanceY", -1, 1, 0, 3, Q("24 mm")))
pocket29 = body.newObject("PartDesign::Pocket", "Pocket028")
pocket29.Profile = sketch30
pocket29.Type = "ThroughAll"

# Sketch on XY plane
sketch31 = body.newObject("Sketcher::SketchObject", "Sketch030")
sketch31.AttachmentSupport = (doc.getObject("XY_Plane"), [""])
sketch31.MapMode = "FlatFace"
sketch31.AttachmentOffset = App.Placement(Vector(0, 0, 0.25 * 25.4), App.Rotation())
sketch31.addGeometry(Part.Circle(Vector(17.25, 24, 0), Vector(0, 0, 1), 10.775), False)
sketch31.addConstraint(Sketcher.Constraint("Diameter", 0, Q("21.55 mm")))
sketch31.addConstraint(Sketcher.Constraint("DistanceX", -1, 1, 0, 3, Q("17.25 mm")))
sketch31.addConstraint(Sketcher.Constraint("DistanceY", -1, 1, 0, 3, Q("24 mm")))
pocket30 = body.newObject("PartDesign::Pocket", "Pocket029")
pocket30.Profile = sketch31
pocket30.Type = "ThroughAll"

# Sketch on XY plane
sketch32 = body.newObject("Sketcher::SketchObject", "Sketch031")
sketch32.AttachmentSupport = (doc.getObject("XY_Plane"), [""])
sketch32.MapMode = "FlatFace"
sketch32.AttachmentOffset = App.Placement(Vector(0, 0, 0.25 * 25.4), App.Rotation())
sketch32.addGeometry(Part.Circle(Vector(40.25, 24, 0), Vector(0, 0, 1), 10.775), False)
sketch32.addConstraint(Sketcher.Constraint("Diameter", 0, Q("21.55 mm")))
sketch32.addConstraint(Sketcher.Constraint("DistanceX", -1, 1, 0, 3, Q("40.25 mm")))
sketch32.addConstraint(Sketcher.Constraint("DistanceY", -1, 1, 0, 3, Q("24 mm")))
pocket31 = body.newObject("PartDesign::Pocket", "Pocket030")
pocket31.Profile = sketch32
pocket31.Type = "ThroughAll"

# Sketch on XY plane
sketch33 = body.newObject("Sketcher::SketchObject", "Sketch032")
sketch33.AttachmentSupport = (doc.getObject("XY_Plane"), [""])
sketch33.MapMode = "FlatFace"
sketch33.AttachmentOffset = App.Placement(Vector(0, 0, 0.25 * 25.4), App.Rotation())
sketch33.addGeometry(Part.Circle(Vector(63.25, 24, 0), Vector(0, 0, 1), 10.775), False)
sketch33.addConstraint(Sketcher.Constraint("Diameter", 0, Q("21.55 mm")))
sketch33.addConstraint(Sketcher.Constraint("DistanceX", -1, 1, 0, 3, Q("63.25 mm")))
sketch33.addConstraint(Sketcher.Constraint("DistanceY", -1, 1, 0, 3, Q("24 mm")))
pocket32 = body.newObject("PartDesign::Pocket", "Pocket031")
pocket32.Profile = sketch33
pocket32.Type = "ThroughAll"

# Sketch on XY plane
sketch34 = body.newObject("Sketcher::SketchObject", "Sketch033")
sketch34.AttachmentSupport = (doc.getObject("XY_Plane"), [""])
sketch34.MapMode = "FlatFace"
sketch34.AttachmentOffset = App.Placement(Vector(0, 0, 0.25 * 25.4), App.Rotation())
sketch34.addGeometry(Part.Circle(Vector(86.25, 24, 0), Vector(0, 0, 1), 10.775), False)
sketch34.addConstraint(Sketcher.Constraint("Diameter", 0, Q("21.55 mm")))
sketch34.addConstraint(Sketcher.Constraint("DistanceX", -1, 1, 0, 3, Q("86.25 mm")))
sketch34.addConstraint(Sketcher.Constraint("DistanceY", -1, 1, 0, 3, Q("24 mm")))
pocket33 = body.newObject("PartDesign::Pocket", "Pocket032")
pocket33.Profile = sketch34
pocket33.Type = "ThroughAll"

# Sketch on XY plane
sketch35 = body.newObject("Sketcher::SketchObject", "Sketch034")
sketch35.AttachmentSupport = (doc.getObject("XY_Plane"), [""])
sketch35.MapMode = "FlatFace"
sketch35.AttachmentOffset = App.Placement(Vector(0, 0, 0.25 * 25.4), App.Rotation())
sketch35.addGeometry(Part.Circle(Vector(109.25, 24, 0), Vector(0, 0, 1), 10.775), False)
sketch35.addConstraint(Sketcher.Constraint("Diameter", 0, Q("21.55 mm")))
sketch35.addConstraint(Sketcher.Constraint("DistanceX", -1, 1, 0, 3, Q("109.25 mm")))
sketch35.addConstraint(Sketcher.Constraint("DistanceY", -1, 1, 0, 3, Q("24 mm")))
pocket34 = body.newObject("PartDesign::Pocket", "Pocket033")
pocket34.Profile = sketch35
pocket34.Type = "ThroughAll"

# Sketch on XY plane
sketch36 = body.newObject("Sketcher::SketchObject", "Sketch035")
sketch36.AttachmentSupport = (doc.getObject("XY_Plane"), [""])
sketch36.MapMode = "FlatFace"
sketch36.AttachmentOffset = App.Placement(Vector(0, 0, 0.25 * 25.4), App.Rotation())
sketch36.addGeometry(Part.Circle(Vector(132.25, 24, 0), Vector(0, 0, 1), 10.775), False)
sketch36.addConstraint(Sketcher.Constraint("Diameter", 0, Q("21.55 mm")))
sketch36.addConstraint(Sketcher.Constraint("DistanceX", -1, 1, 0, 3, Q("132.25 mm")))
sketch36.addConstraint(Sketcher.Constraint("DistanceY", -1, 1, 0, 3, Q("24 mm")))
pocket35 = body.newObject("PartDesign::Pocket", "Pocket034")
pocket35.Profile = sketch36
pocket35.Type = "ThroughAll"

# Sketch on XZ plane
sketch37 = body.newObject("Sketcher::SketchObject", "Sketch036")
sketch37.AttachmentSupport = (doc.getObject("XZ_Plane"), [""])
sketch37.MapMode = "FlatFace"
sketch37.AttachmentOffset = App.Placement(Vector(0, 0, -79.65), App.Rotation())
sketch37.addGeometry(Part.LineSegment(Vector(-153.025, 0, 0), Vector(-153.025, 6.35, 0)), False)
sketch37.addGeometry(Part.LineSegment(Vector(-153.025, 6.35, 0), Vector(153.025, 6.35, 0)), False)
sketch37.addGeometry(Part.LineSegment(Vector(153.025, 6.35, 0), Vector(153.025, 0, 0)), False)
sketch37.addGeometry(Part.LineSegment(Vector(153.025, 0, 0), Vector(-153.025, 0, 0)), False)
sketch37.addConstraint(Sketcher.Constraint("Coincident", 0, 2, 1, 1))
sketch37.addConstraint(Sketcher.Constraint("Coincident", 1, 2, 2, 1))
sketch37.addConstraint(Sketcher.Constraint("Coincident", 2, 2, 3, 1))
sketch37.addConstraint(Sketcher.Constraint("Coincident", 3, 2, 0, 1))
sketch37.addConstraint(Sketcher.Constraint("Vertical", 0))
sketch37.addConstraint(Sketcher.Constraint("Horizontal", 1))
sketch37.addConstraint(Sketcher.Constraint("Vertical", 2))
sketch37.addConstraint(Sketcher.Constraint("Horizontal", 3))
sketch37.addConstraint(Sketcher.Constraint("Symmetric", 2, 2, 3, 2, -1, 1))
sketch37.addConstraint(Sketcher.Constraint("DistanceY", 0, 1, 0, 2, Q("0.25 in")))
sketch37.addConstraint(Sketcher.Constraint("DistanceX", 1, 1, 1, 2, Q("306.05 mm")))
sketch37.setExpression("Constraints[9]", "Params.sketch37_height")
pad2 = body.newObject("PartDesign::Pad", "Pad001")
pad2.Profile = sketch37
pad2.setExpression("Length", "Params.pad2_length")
pad2.Reversed = True

doc.recompute()
